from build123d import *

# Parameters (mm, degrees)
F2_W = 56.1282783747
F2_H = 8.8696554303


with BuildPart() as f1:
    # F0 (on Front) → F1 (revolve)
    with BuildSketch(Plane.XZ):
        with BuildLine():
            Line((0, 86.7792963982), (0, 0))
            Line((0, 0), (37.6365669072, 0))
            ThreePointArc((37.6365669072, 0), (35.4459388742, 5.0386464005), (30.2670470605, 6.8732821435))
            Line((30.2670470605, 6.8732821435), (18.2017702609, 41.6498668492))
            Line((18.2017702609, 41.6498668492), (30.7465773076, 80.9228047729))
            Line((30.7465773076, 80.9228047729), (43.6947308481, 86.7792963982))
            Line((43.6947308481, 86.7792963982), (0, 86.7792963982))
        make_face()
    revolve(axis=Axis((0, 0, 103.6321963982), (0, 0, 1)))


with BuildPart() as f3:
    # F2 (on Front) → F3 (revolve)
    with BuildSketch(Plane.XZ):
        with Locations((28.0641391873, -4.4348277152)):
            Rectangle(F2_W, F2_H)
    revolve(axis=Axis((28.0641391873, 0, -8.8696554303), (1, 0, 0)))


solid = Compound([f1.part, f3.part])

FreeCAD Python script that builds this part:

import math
import FreeCAD as App
import Part
import Sketcher
from FreeCAD import Vector
Q = App.Units.Quantity


def add_polygon(sketch, points):
    """Adds a closed chain of lines whose ends are joined by coincident constraints."""
    first, n = sketch.GeometryCount, len(points)
    for a, b in zip(points, points[1:] + points[:1]):
        sketch.addGeometry(Part.LineSegment(App.Vector(*a, 0), App.Vector(*b, 0)), False)
    for i in range(n):
        sketch.addConstraint(Sketcher.Constraint("Coincident", first + i, 2, first + (i + 1) % n, 1))

doc = App.newDocument("Part")
body = doc.addObject("PartDesign::Body", "Body")

# Sketch on XZ plane
sketch1 = body.newObject("Sketcher::SketchObject", "Sketch")
sketch1.AttachmentSupport = (doc.getObject("XZ_Plane"), [""])
sketch1.MapMode = "FlatFace"
sketch1.addGeometry(Part.LineSegment(Vector(0, 87, 0), Vector(0, 0, 0)), False)
sketch1.addGeometry(Part.LineSegment(Vector(0, 0, 0), Vector(38, 0, 0)), False)
sketch1.addGeometry(Part.ArcOfCircle(Part.Circle(Vector(31, 0, 0), Vector(0, 0, 1), 7), math.radians(0), math.radians(94)), False)
sketch1.addGeometry(Part.LineSegment(Vector(30, 7, 0), Vector(18, 42, 0)), False)
sketch1.addGeometry(Part.LineSegment(Vector(18, 42, 0), Vector(31, 81, 0)), False)
sketch1.addGeometry(Part.LineSegment(Vector(31, 81, 0), Vector(44, 87, 0)), False)
sketch1.addGeometry(Part.LineSegment(Vector(44, 87, 0), Vector(0, 87, 0)), False)
sketch1.addConstraint(Sketcher.Constraint("Coincident", 0, 2, 1, 1))
sketch1.addConstraint(Sketcher.Constraint("Coincident", 1, 2, 2, 1))
sketch1.addConstraint(Sketcher.Constraint("Coincident", 2, 2, 3, 1))
sketch1.addConstraint(Sketcher.Constraint("Coincident", 3, 2, 4, 1))
sketch1.addConstraint(Sketcher.Constraint("Coincident", 4, 2, 5, 1))
sketch1.addConstraint(Sketcher.Constraint("Coincident", 5, 2, 6, 1))
sketch1.addConstraint(Sketcher.Constraint("Coincident", 6, 2, 0, 1))
sketch1.addConstraint(Sketcher.Constraint("Vertical", 0))
sketch1.addConstraint(Sketcher.Constraint("Horizontal", 1))
sketch1.addConstraint(Sketcher.Constraint("Horizontal", 6))
sketch1.addConstraint(Sketcher.Constraint("Coincident", 0, 2, -1, 1))
sketch1.addConstraint(Sketcher.Constraint("PointOnObject", 2, 3, -1))
sketch1.addConstraint(Sketcher.Constraint("Vertical", 2, 3, 4, 2))
sketch1.addConstraint(Sketcher.Constraint("Radius", 2, Q("6.88999 mm")))
sketch1.addConstraint(Sketcher.Constraint("DistanceX", 6, 2, 6, 1, Q("43.694731 mm")))
sketch1.addConstraint(Sketcher.Constraint("DistanceX", 1, 1, 1, 2, Q("37.636567 mm")))
sketch1.addConstraint(Sketcher.Constraint("DistanceY", 0, 2, 0, 1, Q("86.779296 mm")))
sketch1.addConstraint(Sketcher.Constraint("DistanceX", -1, 1, 3, 2, Q("18.20177 mm")))
sketch1.addConstraint(Sketcher.Constraint("DistanceX", 2, 2, 2, 3, Q("0.47953 mm")))
sketch1.addConstraint(Sketcher.Constraint("DistanceY", 4, 2, 5, 2, Q("5.856492 mm")))
sketch1.addConstraint(Sketcher.Constraint("DistanceY", 3, 2, 5, 2, Q("45.12943 mm")))
revolution = body.newObject("PartDesign::Revolution", "Revolution")
revolution.Profile = sketch1
revolution.ReferenceAxis = (sketch1, ["V_Axis"])
revolution.Angle = 360
body2 = doc.addObject("PartDesign::Body", "Body001")

# Sketch on XZ plane
sketch2 = body2.newObject("Sketcher::SketchObject", "Sketch001")
sketch2.AttachmentSupport = (doc.getObject("XZ_Plane001"), [""])
sketch2.MapMode = "FlatFace"
add_polygon(sketch2, [(0, 0), (0, -9), (56, -9), (56, 0)])  # lines 0-3
sketch2.addGeometry(Part.LineSegment(Vector(0, -9, 0), Vector(56, -9, 0)), True)  # axis
sketch2.addConstraint(Sketcher.Constraint("Vertical", 0))
sketch2.addConstraint(Sketcher.Constraint("Horizontal", 1))
sketch2.addConstraint(Sketcher.Constraint("Vertical", 2))
sketch2.addConstraint(Sketcher.Constraint("Horizontal", 3))
sketch2.addConstraint(Sketcher.Constraint("Horizontal", 4))
sketch2.addConstraint(Sketcher.Constraint("Coincident", 3, 2, -1, 1))
sketch2.addConstraint(Sketcher.Constraint("Coincident", 4, 1, 0, 2))
sketch2.addConstraint(Sketcher.Constraint("Vertical", 2, 2, 4, 2))
sketch2.addConstraint(Sketcher.Constraint("DistanceX", 1, 1, 1, 2, Q("56.128278 mm")))
sketch2.addConstraint(Sketcher.Constraint("DistanceY", 0, 2, 0, 1, Q("8.869655 mm")))
revolution2 = body2.newObject("PartDesign::Revolution", "Revolution001")
revolution2.Profile = sketch2
revolution2.ReferenceAxis = (sketch2, ["Axis0"])
revolution2.Angle = 360

doc.recompute()
